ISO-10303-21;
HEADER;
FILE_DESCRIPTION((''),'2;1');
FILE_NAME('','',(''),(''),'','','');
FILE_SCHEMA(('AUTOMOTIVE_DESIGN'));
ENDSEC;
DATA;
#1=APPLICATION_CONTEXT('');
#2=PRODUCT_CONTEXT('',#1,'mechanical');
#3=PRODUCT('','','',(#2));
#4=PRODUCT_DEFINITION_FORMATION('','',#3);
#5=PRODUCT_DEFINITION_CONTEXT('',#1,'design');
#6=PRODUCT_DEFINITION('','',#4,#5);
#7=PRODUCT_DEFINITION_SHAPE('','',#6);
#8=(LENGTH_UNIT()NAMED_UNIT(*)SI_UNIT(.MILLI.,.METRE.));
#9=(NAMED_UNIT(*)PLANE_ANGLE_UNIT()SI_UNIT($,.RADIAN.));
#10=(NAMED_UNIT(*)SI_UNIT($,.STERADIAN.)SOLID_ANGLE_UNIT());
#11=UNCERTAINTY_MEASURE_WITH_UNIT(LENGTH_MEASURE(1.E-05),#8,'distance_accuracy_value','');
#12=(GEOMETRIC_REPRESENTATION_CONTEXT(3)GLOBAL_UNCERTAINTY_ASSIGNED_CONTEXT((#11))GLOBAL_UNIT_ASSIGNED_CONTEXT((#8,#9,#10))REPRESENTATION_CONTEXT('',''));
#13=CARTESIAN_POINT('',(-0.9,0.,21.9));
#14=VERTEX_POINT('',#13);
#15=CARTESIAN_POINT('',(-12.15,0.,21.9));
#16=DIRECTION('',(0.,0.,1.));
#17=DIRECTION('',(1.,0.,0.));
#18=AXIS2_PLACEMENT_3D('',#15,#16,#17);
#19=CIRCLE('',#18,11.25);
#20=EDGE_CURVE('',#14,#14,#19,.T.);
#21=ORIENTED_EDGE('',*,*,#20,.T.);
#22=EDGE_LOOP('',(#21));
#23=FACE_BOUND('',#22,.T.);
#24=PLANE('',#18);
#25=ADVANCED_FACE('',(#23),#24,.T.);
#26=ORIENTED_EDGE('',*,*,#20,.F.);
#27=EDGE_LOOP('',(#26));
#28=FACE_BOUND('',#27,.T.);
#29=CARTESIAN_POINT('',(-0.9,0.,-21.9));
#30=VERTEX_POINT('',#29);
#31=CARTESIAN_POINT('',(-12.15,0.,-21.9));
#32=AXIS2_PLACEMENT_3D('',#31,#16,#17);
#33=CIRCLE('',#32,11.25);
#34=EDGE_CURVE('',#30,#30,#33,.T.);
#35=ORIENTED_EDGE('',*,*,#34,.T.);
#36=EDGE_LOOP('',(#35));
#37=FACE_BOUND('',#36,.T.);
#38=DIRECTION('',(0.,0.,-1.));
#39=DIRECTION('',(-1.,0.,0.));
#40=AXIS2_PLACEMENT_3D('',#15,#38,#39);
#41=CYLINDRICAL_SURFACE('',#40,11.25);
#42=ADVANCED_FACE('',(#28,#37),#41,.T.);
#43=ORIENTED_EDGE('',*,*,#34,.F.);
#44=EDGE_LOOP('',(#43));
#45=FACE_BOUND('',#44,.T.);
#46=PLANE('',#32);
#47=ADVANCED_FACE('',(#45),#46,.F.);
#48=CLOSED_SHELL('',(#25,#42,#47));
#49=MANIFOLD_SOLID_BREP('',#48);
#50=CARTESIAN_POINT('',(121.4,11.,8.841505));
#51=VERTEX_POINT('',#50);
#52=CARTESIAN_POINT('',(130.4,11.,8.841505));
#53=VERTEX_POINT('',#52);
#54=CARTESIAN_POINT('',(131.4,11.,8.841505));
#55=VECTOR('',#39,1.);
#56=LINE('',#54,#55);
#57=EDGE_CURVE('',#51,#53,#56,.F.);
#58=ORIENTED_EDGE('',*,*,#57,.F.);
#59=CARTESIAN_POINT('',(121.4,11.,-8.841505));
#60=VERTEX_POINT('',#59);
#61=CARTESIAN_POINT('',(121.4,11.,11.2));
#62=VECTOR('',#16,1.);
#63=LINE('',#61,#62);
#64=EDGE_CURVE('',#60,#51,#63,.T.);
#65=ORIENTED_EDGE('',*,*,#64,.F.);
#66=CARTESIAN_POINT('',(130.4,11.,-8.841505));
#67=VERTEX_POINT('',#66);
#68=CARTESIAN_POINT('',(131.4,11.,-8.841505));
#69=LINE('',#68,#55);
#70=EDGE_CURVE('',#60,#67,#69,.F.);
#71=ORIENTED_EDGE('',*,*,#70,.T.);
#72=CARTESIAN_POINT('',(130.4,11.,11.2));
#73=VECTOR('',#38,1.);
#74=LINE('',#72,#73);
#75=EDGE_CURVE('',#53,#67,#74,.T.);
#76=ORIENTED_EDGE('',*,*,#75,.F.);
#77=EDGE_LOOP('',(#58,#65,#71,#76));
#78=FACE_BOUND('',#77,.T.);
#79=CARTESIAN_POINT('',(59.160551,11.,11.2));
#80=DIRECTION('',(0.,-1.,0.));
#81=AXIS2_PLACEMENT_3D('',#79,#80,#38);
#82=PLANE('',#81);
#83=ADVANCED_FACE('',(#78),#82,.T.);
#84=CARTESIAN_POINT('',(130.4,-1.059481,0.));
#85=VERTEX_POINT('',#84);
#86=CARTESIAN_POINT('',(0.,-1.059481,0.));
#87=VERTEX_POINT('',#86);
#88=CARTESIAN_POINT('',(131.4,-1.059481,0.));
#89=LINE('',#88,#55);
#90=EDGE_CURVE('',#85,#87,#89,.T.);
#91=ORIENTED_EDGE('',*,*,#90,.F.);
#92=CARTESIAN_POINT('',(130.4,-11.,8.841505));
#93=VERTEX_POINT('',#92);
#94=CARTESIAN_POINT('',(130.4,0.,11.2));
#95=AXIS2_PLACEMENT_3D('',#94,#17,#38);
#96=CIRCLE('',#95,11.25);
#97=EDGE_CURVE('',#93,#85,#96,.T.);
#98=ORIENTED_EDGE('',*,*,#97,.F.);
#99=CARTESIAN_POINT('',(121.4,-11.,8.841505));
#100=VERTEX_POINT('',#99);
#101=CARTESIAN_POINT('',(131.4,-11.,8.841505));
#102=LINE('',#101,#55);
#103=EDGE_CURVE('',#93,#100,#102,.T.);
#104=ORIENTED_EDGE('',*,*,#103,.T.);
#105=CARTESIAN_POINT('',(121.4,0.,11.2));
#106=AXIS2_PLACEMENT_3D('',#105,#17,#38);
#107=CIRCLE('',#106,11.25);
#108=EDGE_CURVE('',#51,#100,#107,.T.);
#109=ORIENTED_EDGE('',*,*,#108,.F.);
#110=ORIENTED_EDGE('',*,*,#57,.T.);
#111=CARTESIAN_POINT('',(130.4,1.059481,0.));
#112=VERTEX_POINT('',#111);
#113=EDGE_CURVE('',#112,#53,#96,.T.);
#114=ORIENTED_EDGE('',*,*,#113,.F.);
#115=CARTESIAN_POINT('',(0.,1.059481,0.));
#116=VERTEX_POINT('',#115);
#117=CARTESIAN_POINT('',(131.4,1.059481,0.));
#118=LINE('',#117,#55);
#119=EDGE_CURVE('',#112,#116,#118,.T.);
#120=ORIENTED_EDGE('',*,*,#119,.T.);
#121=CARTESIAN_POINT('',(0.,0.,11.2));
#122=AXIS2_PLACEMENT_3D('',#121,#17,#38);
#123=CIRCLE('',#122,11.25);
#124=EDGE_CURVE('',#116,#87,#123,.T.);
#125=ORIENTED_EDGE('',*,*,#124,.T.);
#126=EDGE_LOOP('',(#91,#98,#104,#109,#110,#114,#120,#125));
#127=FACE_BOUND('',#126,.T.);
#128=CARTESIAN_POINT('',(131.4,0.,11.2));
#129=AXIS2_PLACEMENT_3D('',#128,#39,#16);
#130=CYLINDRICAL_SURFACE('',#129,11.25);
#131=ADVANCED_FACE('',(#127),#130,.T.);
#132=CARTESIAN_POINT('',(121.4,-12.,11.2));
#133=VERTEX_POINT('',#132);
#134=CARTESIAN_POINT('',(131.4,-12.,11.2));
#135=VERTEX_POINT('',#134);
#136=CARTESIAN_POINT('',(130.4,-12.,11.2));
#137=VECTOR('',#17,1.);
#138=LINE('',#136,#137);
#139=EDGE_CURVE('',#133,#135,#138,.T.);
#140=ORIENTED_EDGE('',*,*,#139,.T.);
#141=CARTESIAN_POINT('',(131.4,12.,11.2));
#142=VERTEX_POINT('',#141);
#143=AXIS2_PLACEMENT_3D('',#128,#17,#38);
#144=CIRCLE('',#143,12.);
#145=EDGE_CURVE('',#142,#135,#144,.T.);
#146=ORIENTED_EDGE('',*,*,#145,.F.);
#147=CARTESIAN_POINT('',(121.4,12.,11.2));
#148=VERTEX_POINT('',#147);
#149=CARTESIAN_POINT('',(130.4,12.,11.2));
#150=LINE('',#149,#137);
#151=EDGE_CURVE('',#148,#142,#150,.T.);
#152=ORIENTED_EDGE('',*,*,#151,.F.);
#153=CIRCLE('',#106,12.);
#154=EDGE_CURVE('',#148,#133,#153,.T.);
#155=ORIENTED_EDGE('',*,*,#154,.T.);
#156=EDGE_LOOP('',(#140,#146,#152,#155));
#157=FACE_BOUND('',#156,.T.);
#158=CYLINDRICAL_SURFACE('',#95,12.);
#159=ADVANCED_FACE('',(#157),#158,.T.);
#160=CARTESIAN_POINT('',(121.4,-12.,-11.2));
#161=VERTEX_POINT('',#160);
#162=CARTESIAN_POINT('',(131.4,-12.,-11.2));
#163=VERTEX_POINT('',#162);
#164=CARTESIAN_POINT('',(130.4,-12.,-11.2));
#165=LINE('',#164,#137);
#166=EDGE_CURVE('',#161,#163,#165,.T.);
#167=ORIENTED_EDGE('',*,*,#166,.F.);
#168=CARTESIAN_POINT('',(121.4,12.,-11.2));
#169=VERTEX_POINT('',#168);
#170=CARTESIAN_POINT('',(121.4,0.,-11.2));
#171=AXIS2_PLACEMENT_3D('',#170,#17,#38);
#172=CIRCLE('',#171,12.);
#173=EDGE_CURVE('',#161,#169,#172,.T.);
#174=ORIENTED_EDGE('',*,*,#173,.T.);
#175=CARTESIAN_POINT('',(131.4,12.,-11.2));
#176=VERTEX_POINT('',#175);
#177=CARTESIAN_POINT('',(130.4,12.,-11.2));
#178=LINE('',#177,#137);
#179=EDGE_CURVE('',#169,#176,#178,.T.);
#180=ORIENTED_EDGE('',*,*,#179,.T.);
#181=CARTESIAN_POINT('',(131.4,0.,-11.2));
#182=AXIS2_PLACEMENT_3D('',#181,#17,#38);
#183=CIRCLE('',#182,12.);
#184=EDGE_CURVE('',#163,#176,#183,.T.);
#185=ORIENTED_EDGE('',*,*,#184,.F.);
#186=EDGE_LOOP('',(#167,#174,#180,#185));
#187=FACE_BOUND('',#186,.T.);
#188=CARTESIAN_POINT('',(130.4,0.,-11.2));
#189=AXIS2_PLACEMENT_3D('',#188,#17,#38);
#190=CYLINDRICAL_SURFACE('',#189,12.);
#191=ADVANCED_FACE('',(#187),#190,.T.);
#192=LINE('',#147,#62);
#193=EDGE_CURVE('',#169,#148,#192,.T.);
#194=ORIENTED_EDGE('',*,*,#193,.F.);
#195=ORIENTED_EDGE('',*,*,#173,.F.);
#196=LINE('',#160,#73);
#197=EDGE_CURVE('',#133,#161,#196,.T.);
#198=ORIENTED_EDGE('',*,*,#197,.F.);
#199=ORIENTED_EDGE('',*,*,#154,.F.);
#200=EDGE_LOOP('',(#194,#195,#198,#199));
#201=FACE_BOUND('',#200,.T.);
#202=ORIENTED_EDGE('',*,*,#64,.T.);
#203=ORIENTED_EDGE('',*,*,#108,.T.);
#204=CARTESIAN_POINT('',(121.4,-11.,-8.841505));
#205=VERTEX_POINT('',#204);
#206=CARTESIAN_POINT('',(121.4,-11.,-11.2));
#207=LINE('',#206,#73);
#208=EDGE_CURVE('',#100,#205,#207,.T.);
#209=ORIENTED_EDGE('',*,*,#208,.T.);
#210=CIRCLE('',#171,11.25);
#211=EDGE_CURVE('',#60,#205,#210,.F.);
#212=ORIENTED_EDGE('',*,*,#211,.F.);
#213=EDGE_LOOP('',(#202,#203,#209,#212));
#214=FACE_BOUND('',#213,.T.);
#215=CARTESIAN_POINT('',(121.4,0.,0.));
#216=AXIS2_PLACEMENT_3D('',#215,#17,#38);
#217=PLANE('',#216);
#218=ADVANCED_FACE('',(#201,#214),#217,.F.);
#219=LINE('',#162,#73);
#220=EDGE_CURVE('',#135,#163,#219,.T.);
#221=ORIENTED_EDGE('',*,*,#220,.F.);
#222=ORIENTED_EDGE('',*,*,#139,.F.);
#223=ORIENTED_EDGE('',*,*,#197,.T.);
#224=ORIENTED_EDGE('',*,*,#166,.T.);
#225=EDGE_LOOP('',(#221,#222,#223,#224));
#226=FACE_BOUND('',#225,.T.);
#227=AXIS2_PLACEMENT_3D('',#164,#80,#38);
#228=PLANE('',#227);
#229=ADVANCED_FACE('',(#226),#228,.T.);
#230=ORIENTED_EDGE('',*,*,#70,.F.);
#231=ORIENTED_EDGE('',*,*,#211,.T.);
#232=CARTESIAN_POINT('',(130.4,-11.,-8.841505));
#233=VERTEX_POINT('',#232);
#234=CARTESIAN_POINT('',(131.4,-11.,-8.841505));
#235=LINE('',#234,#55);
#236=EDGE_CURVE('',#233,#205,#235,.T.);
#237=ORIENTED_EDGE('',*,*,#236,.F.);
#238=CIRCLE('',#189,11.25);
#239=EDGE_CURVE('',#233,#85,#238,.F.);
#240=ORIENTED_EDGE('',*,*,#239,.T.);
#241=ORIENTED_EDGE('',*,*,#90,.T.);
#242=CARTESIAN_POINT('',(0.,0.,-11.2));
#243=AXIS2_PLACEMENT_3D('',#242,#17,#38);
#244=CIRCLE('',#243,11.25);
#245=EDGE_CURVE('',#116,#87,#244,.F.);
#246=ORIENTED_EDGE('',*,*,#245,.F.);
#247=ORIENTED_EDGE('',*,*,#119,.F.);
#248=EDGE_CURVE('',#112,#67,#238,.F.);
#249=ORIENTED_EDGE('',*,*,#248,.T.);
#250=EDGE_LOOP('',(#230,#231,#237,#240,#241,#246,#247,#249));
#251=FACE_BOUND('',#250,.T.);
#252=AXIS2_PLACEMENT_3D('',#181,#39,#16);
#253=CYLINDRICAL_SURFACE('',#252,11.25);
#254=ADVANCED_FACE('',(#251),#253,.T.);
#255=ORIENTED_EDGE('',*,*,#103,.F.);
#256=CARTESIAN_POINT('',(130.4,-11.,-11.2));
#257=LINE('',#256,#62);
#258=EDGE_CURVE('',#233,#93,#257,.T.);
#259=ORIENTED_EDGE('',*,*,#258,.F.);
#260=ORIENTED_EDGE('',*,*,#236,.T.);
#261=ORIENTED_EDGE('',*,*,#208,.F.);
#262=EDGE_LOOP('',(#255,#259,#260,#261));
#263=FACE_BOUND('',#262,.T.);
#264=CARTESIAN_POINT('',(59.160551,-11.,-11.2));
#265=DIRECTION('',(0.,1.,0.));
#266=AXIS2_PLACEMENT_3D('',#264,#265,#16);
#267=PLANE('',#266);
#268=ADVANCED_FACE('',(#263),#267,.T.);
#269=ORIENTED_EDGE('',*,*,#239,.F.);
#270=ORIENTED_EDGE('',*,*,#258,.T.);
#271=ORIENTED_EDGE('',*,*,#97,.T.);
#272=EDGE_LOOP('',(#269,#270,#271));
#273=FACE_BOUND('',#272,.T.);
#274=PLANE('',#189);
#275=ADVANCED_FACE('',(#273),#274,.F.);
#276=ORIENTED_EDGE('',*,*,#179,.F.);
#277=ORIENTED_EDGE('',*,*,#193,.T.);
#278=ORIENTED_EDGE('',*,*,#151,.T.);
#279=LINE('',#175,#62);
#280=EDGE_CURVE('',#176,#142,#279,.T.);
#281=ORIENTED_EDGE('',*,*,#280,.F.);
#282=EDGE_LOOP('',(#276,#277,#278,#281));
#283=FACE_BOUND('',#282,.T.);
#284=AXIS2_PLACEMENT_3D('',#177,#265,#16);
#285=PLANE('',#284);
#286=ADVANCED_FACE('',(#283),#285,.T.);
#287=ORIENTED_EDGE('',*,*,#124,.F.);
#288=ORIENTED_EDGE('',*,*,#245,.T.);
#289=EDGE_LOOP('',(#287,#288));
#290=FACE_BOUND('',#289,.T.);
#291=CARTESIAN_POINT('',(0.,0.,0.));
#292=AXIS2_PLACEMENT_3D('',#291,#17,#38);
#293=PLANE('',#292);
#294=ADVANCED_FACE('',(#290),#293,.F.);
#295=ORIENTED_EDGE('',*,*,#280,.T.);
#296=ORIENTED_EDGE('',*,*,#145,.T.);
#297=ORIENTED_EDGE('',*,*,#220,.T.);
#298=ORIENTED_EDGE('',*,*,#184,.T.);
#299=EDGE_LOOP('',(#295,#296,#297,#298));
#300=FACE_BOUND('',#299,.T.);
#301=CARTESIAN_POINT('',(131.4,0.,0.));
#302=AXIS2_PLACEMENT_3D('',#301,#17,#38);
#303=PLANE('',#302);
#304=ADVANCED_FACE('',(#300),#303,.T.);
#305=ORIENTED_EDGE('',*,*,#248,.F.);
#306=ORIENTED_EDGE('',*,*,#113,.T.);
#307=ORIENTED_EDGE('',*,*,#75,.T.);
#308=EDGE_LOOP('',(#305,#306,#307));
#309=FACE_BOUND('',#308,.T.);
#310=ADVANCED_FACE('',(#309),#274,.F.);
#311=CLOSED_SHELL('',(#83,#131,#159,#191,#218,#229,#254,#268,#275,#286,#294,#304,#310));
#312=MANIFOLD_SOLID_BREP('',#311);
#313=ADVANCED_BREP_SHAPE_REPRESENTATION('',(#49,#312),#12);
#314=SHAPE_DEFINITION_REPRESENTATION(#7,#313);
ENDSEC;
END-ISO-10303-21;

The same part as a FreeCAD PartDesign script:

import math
import FreeCAD as App
import Part
import Sketcher
from FreeCAD import Vector
Q = App.Units.Quantity

doc = App.newDocument("Part")
params = doc.addObject("Spreadsheet::Sheet", "Params")
for row, (alias, value) in enumerate([
    ("sketch1_radius", "11.25 mm"),
    ("pad1_length", "131.4 mm"),
    ("sketch2_radius", "12 mm"),
    ("sketch2_height", "22.4 mm"),
    ("pad2_length", "1 mm"),
    ("sketch3_radius", "12 mm"),
    ("sketch3_radius2", "11 mm"),
    ("sketch3_height", "22.4 mm"),
    ("pad3_length", "9 mm"),
    ("sketch4_diameter", "22.5 mm"),
    ("pad4_length", "43.8 mm"),
], start=1):
    params.set(f"A{row}", alias)
    params.set(f"B{row}", "=" + value)
    params.setAlias(f"B{row}", alias)

body = doc.addObject("PartDesign::Body", "Body")

sketch1 = body.newObject("Sketcher::SketchObject", "Sketch")
sketch1.AttachmentSupport = (doc.getObject("YZ_Plane"), [""])
sketch1.MapMode = "FlatFace"
sketch1.addGeometry(Part.ArcOfCircle(Part.Circle(Vector(0, 11.2, 0), Vector(0, 0, 1), 11.25), math.radians(-84.596099), math.radians(264.596099)), False)
sketch1.addGeometry(Part.ArcOfCircle(Part.Circle(Vector(0, -11.2, 0), Vector(0, 0, 1), 11.25), math.radians(95.403901), math.radians(444.596099)), False)
sketch1.addConstraint(Sketcher.Constraint("Coincident", 0, 1, 1, 2))
sketch1.addConstraint(Sketcher.Constraint("Coincident", 1, 1, 0, 2))
sketch1.addConstraint(Sketcher.Constraint("Equal", 0, 1))
sketch1.addConstraint(Sketcher.Constraint("Symmetric", 0, 3, 1, 3, -1, 1))
sketch1.addConstraint(Sketcher.Constraint("PointOnObject", 0, 3, -2))
sketch1.addConstraint(Sketcher.Constraint("Radius", 0, Q("11.25 mm")))
sketch1.addConstraint(Sketcher.Constraint("DistanceY", -1, 1, 0, 3, Q("11.2 mm")))
sketch1.setExpression("Constraints[5]", "Params.sketch1_radius")
pad1 = body.newObject("PartDesign::Pad", "Pad")
pad1.Profile = sketch1
pad1.setExpression("Length", "Params.pad1_length")

sketch2 = body.newObject("Sketcher::SketchObject", "Sketch001")
sketch2.AttachmentSupport = (doc.getObject("YZ_Plane"), [""])
sketch2.MapMode = "FlatFace"
sketch2.AttachmentOffset = App.Placement(Vector(0, 0, 131.4), App.Rotation())
sketch2.addGeometry(Part.LineSegment(Vector(-12, 11.2, 0), Vector(-12, -11.2, 0)), False)
sketch2.addGeometry(Part.ArcOfCircle(Part.Circle(Vector(0, -11.2, 0), Vector(0, 0, 1), 12), math.radians(180), math.radians(360)), False)
sketch2.addGeometry(Part.LineSegment(Vector(12, -11.2, 0), Vector(12, 11.2, 0)), False)
sketch2.addGeometry(Part.ArcOfCircle(Part.Circle(Vector(0, 11.2, 0), Vector(0, 0, 1), 12), math.radians(0), math.radians(180)), False)
sketch2.addConstraint(Sketcher.Constraint("Tangent", 0, 2, 1, 1))
sketch2.addConstraint(Sketcher.Constraint("Tangent", 1, 2, 2, 1))
sketch2.addConstraint(Sketcher.Constraint("Tangent", 2, 2, 3, 1))
sketch2.addConstraint(Sketcher.Constraint("Tangent", 3, 2, 0, 1))
sketch2.addConstraint(Sketcher.Constraint("Vertical", 0))
sketch2.addConstraint(Sketcher.Constraint("Vertical", 2))
sketch2.addConstraint(Sketcher.Constraint("Symmetric", 1, 3, 3, 3, -1, 1))
sketch2.addConstraint(Sketcher.Constraint("Radius", 1, Q("12 mm")))
sketch2.addConstraint(Sketcher.Constraint("DistanceY", 0, 2, 0, 1, Q("22.4 mm")))
sketch2.setExpression("Constraints[7]", "Params.sketch2_radius")
sketch2.setExpression("Constraints[8]", "Params.sketch2_height")
pad2 = body.newObject("PartDesign::Pad", "Pad001")
pad2.Profile = sketch2
pad2.setExpression("Length", "Params.pad2_length")
pad2.Reversed = True

sketch3 = body.newObject("Sketcher::SketchObject", "Sketch002")
sketch3.AttachmentSupport = (doc.getObject("YZ_Plane"), [""])
sketch3.MapMode = "FlatFace"
sketch3.AttachmentOffset = App.Placement(Vector(0, 0, 130.4), App.Rotation())
sketch3.addGeometry(Part.LineSegment(Vector(-12, -11.2, 0), Vector(-12, 11.2, 0)), False)
sketch3.addGeometry(Part.ArcOfCircle(Part.Circle(Vector(0, 11.2, 0), Vector(0, 0, 1), 12), math.radians(0), math.radians(180)), False)
sketch3.addGeometry(Part.LineSegment(Vector(12, 11.2, 0), Vector(12, -11.2, 0)), False)
sketch3.addGeometry(Part.ArcOfCircle(Part.Circle(Vector(0, -11.2, 0), Vector(0, 0, 1), 12), math.radians(180), math.radians(360)), False)
sketch3.addGeometry(Part.LineSegment(Vector(-11, 11.2, 0), Vector(-11, -11.2, 0)), False)
sketch3.addGeometry(Part.ArcOfCircle(Part.Circle(Vector(0, -11.2, 0), Vector(0, 0, 1), 11), math.radians(180), math.radians(360)), False)
sketch3.addGeometry(Part.LineSegment(Vector(11, -11.2, 0), Vector(11, 11.2, 0)), False)
sketch3.addGeometry(Part.ArcOfCircle(Part.Circle(Vector(0, 11.2, 0), Vector(0, 0, 1), 11), math.radians(0), math.radians(180)), False)
sketch3.addConstraint(Sketcher.Constraint("Tangent", 0, 2, 1, 2))
sketch3.addConstraint(Sketcher.Constraint("Tangent", 1, 1, 2, 1))
sketch3.addConstraint(Sketcher.Constraint("Tangent", 2, 2, 3, 2))
sketch3.addConstraint(Sketcher.Constraint("Tangent", 3, 1, 0, 1))
sketch3.addConstraint(Sketcher.Constraint("Tangent", 4, 2, 5, 1))
sketch3.addConstraint(Sketcher.Constraint("Tangent", 5, 2, 6, 1))
sketch3.addConstraint(Sketcher.Constraint("Tangent", 6, 2, 7, 1))
sketch3.addConstraint(Sketcher.Constraint("Tangent", 7, 2, 4, 1))
sketch3.addConstraint(Sketcher.Constraint("Vertical", 0))
sketch3.addConstraint(Sketcher.Constraint("Vertical", 2))
sketch3.addConstraint(Sketcher.Constraint("Vertical", 4))
sketch3.addConstraint(Sketcher.Constraint("Vertical", 6))
sketch3.addConstraint(Sketcher.Constraint("Coincident", 5, 3, 3, 3))
sketch3.addConstraint(Sketcher.Constraint("Symmetric", 1, 3, 3, 3, -1, 1))
sketch3.addConstraint(Sketcher.Constraint("Horizontal", 7, 3, 0, 2))
sketch3.addConstraint(Sketcher.Constraint("Radius", 1, Q("12 mm")))
sketch3.addConstraint(Sketcher.Constraint("Radius", 5, Q("11 mm")))
sketch3.addConstraint(Sketcher.Constraint("DistanceY", 0, 1, 0, 2, Q("22.4 mm")))
sketch3.setExpression("Constraints[15]", "Params.sketch3_radius")
sketch3.setExpression("Constraints[16]", "Params.sketch3_radius2")
sketch3.setExpression("Constraints[17]", "Params.sketch3_height")
pad3 = body.newObject("PartDesign::Pad", "Pad002")
pad3.Profile = sketch3
pad3.setExpression("Length", "Params.pad3_length")
pad3.Reversed = True
body2 = doc.addObject("PartDesign::Body", "Body001")

sketch4 = body2.newObject("Sketcher::SketchObject", "Sketch003")
sketch4.AttachmentSupport = (doc.getObject("XY_Plane001"), [""])
sketch4.MapMode = "FlatFace"
sketch4.addGeometry(Part.Circle(Vector(-12.15, 0, 0), Vector(0, 0, 1), 11.25), False)
sketch4.addConstraint(Sketcher.Constraint("PointOnObject", 0, 3, -1))
sketch4.addConstraint(Sketcher.Constraint("Diameter", 0, Q("22.5 mm")))
sketch4.addConstraint(Sketcher.Constraint("DistanceX", 0, 3, -1, 1, Q("12.15 mm")))
sketch4.setExpression("Constraints[1]", "Params.sketch4_diameter")
pad4 = body2.newObject("PartDesign::Pad", "Pad003")
pad4.Profile = sketch4
pad4.setExpression("Length", "Params.pad4_length")
pad4.Midplane = True

doc.recompute()
